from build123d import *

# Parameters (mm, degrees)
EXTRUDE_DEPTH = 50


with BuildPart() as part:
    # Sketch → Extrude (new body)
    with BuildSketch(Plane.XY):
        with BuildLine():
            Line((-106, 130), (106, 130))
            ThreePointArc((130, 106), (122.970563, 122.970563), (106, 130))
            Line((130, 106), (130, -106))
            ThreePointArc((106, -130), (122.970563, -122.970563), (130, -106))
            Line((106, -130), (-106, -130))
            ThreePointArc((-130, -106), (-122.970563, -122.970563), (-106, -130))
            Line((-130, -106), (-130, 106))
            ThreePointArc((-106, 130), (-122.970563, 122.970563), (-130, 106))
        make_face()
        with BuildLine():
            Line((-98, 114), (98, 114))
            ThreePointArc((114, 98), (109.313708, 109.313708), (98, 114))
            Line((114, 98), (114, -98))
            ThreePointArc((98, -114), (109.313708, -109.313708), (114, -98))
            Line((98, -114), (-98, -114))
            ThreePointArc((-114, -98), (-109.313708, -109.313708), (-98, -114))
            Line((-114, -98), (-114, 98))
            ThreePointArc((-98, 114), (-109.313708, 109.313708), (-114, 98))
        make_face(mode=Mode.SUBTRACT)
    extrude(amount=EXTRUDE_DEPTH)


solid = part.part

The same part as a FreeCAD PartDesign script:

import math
import FreeCAD as App
import Part
import Sketcher
from FreeCAD import Vector
Q = App.Units.Quantity

doc = App.newDocument("Part")
body = doc.addObject("PartDesign::Body", "Body")

# Sketch on XY plane
sketch1 = body.newObject("Sketcher::SketchObject", "Sketch")
sketch1.AttachmentSupport = (doc.getObject("XY_Plane"), [""])
sketch1.MapMode = "FlatFace"
sketch1.addGeometry([
    Part.LineSegment(Vector(106, 130, 0), Vector(-106, 130, 0)),  # 0
    Part.ArcOfCircle(Part.Circle(Vector(-106.000001, 106.000001, 0), Vector(0, 0, 1), 23.999999), math.radians(89.999998), math.radians(180.000002)),  # 1
    Part.LineSegment(Vector(-130, 106, 0), Vector(-130, -106, 0)),  # 2
    Part.ArcOfCircle(Part.Circle(Vector(-106.000001, -106.000001, 0), Vector(0, 0, 1), 23.999999), math.radians(179.999998), math.radians(270.000002)),  # 3
    Part.LineSegment(Vector(-106, -130, 0), Vector(106, -130, 0)),  # 4
    Part.ArcOfCircle(Part.Circle(Vector(106.000001, -106.000001, 0), Vector(0, 0, 1), 23.999999), math.radians(-90.000002), math.radians(0.000002)),  # 5
    Part.LineSegment(Vector(130, -106, 0), Vector(130, 106, 0)),  # 6
    Part.ArcOfCircle(Part.Circle(Vector(106.000001, 106.000001, 0), Vector(0, 0, 1), 23.999999), math.radians(-0.000002), math.radians(90.000002)),  # 7
    Part.LineSegment(Vector(-98, 114, 0), Vector(98, 114, 0)),  # 8
    Part.ArcOfCircle(Part.Circle(Vector(97.999998, 97.999998, 0), Vector(0, 0, 1), 16.000002), math.radians(0.000006), math.radians(89.999994)),  # 9
    Part.LineSegment(Vector(114, 98, 0), Vector(114, -98, 0)),  # 10
    Part.ArcOfCircle(Part.Circle(Vector(97.999998, -97.999998, 0), Vector(0, 0, 1), 16.000002), math.radians(-89.999994), math.radians(-0.000006)),  # 11
    Part.LineSegment(Vector(98, -114, 0), Vector(-98, -114, 0)),  # 12
    Part.ArcOfCircle(Part.Circle(Vector(-97.999998, -97.999998, 0), Vector(0, 0, 1), 16.000002), math.radians(-179.999994), math.radians(-90.000006)),  # 13
    Part.LineSegment(Vector(-114, -98, 0), Vector(-114, 98, 0)),  # 14
    Part.ArcOfCircle(Part.Circle(Vector(-97.999998, 97.999998, 0), Vector(0, 0, 1), 16.000002), math.radians(90.000006), math.radians(179.999994)),  # 15
], False)
sketch1.addConstraint([
    Sketcher.Constraint("Tangent", 0, 2, 1, 1),
    Sketcher.Constraint("Tangent", 1, 2, 2, 1),
    Sketcher.Constraint("Tangent", 2, 2, 3, 1),
    Sketcher.Constraint("Tangent", 3, 2, 4, 1),
    Sketcher.Constraint("Tangent", 4, 2, 5, 1),
    Sketcher.Constraint("Tangent", 5, 2, 6, 1),
    Sketcher.Constraint("Tangent", 6, 2, 7, 1),
    Sketcher.Constraint("Tangent", 7, 2, 0, 1),
    Sketcher.Constraint("Tangent", 8, 2, 9, 2),
    Sketcher.Constraint("Tangent", 9, 1, 10, 1),
    Sketcher.Constraint("Tangent", 10, 2, 11, 2),
    Sketcher.Constraint("Tangent", 11, 1, 12, 1),
    Sketcher.Constraint("Tangent", 12, 2, 13, 2),
    Sketcher.Constraint("Tangent", 13, 1, 14, 1),
    Sketcher.Constraint("Tangent", 14, 2, 15, 2),
    Sketcher.Constraint("Tangent", 15, 1, 8, 1),
    Sketcher.Constraint("Horizontal", 0),
    Sketcher.Constraint("Vertical", 2),
    Sketcher.Constraint("Horizontal", 4),
    Sketcher.Constraint("Vertical", 6),
    Sketcher.Constraint("Horizontal", 8),
    Sketcher.Constraint("Vertical", 10),
    Sketcher.Constraint("Horizontal", 12),
    Sketcher.Constraint("Vertical", 14),
    Sketcher.Constraint("Equal", 1, 3),
    Sketcher.Constraint("Equal", 3, 5),
    Sketcher.Constraint("Equal", 5, 7),
    Sketcher.Constraint("Equal", 9, 11),
    Sketcher.Constraint("Equal", 11, 13),
    Sketcher.Constraint("Equal", 13, 15),
    Sketcher.Constraint("Symmetric", 1, 3, 5, 3, -1, 1),
    Sketcher.Constraint("Symmetric", 9, 3, 13, 3, -1, 1),
    Sketcher.Constraint("Equal", 4, 2),
    Sketcher.Constraint("Equal", 12, 10),
    Sketcher.Constraint("Radius", 1, Q("23.999999 mm")),
    Sketcher.Constraint("Radius", 9, Q("16.000002 mm")),
    Sketcher.Constraint("DistanceX", 0, 2, 0, 1, Q("212 mm")),
    Sketcher.Constraint("DistanceX", 8, 1, 8, 2, Q("196 mm")),
])
pad1 = body.newObject("PartDesign::Pad", "Pad")
pad1.Profile = sketch1
pad1.Length = 50

doc.recompute()
